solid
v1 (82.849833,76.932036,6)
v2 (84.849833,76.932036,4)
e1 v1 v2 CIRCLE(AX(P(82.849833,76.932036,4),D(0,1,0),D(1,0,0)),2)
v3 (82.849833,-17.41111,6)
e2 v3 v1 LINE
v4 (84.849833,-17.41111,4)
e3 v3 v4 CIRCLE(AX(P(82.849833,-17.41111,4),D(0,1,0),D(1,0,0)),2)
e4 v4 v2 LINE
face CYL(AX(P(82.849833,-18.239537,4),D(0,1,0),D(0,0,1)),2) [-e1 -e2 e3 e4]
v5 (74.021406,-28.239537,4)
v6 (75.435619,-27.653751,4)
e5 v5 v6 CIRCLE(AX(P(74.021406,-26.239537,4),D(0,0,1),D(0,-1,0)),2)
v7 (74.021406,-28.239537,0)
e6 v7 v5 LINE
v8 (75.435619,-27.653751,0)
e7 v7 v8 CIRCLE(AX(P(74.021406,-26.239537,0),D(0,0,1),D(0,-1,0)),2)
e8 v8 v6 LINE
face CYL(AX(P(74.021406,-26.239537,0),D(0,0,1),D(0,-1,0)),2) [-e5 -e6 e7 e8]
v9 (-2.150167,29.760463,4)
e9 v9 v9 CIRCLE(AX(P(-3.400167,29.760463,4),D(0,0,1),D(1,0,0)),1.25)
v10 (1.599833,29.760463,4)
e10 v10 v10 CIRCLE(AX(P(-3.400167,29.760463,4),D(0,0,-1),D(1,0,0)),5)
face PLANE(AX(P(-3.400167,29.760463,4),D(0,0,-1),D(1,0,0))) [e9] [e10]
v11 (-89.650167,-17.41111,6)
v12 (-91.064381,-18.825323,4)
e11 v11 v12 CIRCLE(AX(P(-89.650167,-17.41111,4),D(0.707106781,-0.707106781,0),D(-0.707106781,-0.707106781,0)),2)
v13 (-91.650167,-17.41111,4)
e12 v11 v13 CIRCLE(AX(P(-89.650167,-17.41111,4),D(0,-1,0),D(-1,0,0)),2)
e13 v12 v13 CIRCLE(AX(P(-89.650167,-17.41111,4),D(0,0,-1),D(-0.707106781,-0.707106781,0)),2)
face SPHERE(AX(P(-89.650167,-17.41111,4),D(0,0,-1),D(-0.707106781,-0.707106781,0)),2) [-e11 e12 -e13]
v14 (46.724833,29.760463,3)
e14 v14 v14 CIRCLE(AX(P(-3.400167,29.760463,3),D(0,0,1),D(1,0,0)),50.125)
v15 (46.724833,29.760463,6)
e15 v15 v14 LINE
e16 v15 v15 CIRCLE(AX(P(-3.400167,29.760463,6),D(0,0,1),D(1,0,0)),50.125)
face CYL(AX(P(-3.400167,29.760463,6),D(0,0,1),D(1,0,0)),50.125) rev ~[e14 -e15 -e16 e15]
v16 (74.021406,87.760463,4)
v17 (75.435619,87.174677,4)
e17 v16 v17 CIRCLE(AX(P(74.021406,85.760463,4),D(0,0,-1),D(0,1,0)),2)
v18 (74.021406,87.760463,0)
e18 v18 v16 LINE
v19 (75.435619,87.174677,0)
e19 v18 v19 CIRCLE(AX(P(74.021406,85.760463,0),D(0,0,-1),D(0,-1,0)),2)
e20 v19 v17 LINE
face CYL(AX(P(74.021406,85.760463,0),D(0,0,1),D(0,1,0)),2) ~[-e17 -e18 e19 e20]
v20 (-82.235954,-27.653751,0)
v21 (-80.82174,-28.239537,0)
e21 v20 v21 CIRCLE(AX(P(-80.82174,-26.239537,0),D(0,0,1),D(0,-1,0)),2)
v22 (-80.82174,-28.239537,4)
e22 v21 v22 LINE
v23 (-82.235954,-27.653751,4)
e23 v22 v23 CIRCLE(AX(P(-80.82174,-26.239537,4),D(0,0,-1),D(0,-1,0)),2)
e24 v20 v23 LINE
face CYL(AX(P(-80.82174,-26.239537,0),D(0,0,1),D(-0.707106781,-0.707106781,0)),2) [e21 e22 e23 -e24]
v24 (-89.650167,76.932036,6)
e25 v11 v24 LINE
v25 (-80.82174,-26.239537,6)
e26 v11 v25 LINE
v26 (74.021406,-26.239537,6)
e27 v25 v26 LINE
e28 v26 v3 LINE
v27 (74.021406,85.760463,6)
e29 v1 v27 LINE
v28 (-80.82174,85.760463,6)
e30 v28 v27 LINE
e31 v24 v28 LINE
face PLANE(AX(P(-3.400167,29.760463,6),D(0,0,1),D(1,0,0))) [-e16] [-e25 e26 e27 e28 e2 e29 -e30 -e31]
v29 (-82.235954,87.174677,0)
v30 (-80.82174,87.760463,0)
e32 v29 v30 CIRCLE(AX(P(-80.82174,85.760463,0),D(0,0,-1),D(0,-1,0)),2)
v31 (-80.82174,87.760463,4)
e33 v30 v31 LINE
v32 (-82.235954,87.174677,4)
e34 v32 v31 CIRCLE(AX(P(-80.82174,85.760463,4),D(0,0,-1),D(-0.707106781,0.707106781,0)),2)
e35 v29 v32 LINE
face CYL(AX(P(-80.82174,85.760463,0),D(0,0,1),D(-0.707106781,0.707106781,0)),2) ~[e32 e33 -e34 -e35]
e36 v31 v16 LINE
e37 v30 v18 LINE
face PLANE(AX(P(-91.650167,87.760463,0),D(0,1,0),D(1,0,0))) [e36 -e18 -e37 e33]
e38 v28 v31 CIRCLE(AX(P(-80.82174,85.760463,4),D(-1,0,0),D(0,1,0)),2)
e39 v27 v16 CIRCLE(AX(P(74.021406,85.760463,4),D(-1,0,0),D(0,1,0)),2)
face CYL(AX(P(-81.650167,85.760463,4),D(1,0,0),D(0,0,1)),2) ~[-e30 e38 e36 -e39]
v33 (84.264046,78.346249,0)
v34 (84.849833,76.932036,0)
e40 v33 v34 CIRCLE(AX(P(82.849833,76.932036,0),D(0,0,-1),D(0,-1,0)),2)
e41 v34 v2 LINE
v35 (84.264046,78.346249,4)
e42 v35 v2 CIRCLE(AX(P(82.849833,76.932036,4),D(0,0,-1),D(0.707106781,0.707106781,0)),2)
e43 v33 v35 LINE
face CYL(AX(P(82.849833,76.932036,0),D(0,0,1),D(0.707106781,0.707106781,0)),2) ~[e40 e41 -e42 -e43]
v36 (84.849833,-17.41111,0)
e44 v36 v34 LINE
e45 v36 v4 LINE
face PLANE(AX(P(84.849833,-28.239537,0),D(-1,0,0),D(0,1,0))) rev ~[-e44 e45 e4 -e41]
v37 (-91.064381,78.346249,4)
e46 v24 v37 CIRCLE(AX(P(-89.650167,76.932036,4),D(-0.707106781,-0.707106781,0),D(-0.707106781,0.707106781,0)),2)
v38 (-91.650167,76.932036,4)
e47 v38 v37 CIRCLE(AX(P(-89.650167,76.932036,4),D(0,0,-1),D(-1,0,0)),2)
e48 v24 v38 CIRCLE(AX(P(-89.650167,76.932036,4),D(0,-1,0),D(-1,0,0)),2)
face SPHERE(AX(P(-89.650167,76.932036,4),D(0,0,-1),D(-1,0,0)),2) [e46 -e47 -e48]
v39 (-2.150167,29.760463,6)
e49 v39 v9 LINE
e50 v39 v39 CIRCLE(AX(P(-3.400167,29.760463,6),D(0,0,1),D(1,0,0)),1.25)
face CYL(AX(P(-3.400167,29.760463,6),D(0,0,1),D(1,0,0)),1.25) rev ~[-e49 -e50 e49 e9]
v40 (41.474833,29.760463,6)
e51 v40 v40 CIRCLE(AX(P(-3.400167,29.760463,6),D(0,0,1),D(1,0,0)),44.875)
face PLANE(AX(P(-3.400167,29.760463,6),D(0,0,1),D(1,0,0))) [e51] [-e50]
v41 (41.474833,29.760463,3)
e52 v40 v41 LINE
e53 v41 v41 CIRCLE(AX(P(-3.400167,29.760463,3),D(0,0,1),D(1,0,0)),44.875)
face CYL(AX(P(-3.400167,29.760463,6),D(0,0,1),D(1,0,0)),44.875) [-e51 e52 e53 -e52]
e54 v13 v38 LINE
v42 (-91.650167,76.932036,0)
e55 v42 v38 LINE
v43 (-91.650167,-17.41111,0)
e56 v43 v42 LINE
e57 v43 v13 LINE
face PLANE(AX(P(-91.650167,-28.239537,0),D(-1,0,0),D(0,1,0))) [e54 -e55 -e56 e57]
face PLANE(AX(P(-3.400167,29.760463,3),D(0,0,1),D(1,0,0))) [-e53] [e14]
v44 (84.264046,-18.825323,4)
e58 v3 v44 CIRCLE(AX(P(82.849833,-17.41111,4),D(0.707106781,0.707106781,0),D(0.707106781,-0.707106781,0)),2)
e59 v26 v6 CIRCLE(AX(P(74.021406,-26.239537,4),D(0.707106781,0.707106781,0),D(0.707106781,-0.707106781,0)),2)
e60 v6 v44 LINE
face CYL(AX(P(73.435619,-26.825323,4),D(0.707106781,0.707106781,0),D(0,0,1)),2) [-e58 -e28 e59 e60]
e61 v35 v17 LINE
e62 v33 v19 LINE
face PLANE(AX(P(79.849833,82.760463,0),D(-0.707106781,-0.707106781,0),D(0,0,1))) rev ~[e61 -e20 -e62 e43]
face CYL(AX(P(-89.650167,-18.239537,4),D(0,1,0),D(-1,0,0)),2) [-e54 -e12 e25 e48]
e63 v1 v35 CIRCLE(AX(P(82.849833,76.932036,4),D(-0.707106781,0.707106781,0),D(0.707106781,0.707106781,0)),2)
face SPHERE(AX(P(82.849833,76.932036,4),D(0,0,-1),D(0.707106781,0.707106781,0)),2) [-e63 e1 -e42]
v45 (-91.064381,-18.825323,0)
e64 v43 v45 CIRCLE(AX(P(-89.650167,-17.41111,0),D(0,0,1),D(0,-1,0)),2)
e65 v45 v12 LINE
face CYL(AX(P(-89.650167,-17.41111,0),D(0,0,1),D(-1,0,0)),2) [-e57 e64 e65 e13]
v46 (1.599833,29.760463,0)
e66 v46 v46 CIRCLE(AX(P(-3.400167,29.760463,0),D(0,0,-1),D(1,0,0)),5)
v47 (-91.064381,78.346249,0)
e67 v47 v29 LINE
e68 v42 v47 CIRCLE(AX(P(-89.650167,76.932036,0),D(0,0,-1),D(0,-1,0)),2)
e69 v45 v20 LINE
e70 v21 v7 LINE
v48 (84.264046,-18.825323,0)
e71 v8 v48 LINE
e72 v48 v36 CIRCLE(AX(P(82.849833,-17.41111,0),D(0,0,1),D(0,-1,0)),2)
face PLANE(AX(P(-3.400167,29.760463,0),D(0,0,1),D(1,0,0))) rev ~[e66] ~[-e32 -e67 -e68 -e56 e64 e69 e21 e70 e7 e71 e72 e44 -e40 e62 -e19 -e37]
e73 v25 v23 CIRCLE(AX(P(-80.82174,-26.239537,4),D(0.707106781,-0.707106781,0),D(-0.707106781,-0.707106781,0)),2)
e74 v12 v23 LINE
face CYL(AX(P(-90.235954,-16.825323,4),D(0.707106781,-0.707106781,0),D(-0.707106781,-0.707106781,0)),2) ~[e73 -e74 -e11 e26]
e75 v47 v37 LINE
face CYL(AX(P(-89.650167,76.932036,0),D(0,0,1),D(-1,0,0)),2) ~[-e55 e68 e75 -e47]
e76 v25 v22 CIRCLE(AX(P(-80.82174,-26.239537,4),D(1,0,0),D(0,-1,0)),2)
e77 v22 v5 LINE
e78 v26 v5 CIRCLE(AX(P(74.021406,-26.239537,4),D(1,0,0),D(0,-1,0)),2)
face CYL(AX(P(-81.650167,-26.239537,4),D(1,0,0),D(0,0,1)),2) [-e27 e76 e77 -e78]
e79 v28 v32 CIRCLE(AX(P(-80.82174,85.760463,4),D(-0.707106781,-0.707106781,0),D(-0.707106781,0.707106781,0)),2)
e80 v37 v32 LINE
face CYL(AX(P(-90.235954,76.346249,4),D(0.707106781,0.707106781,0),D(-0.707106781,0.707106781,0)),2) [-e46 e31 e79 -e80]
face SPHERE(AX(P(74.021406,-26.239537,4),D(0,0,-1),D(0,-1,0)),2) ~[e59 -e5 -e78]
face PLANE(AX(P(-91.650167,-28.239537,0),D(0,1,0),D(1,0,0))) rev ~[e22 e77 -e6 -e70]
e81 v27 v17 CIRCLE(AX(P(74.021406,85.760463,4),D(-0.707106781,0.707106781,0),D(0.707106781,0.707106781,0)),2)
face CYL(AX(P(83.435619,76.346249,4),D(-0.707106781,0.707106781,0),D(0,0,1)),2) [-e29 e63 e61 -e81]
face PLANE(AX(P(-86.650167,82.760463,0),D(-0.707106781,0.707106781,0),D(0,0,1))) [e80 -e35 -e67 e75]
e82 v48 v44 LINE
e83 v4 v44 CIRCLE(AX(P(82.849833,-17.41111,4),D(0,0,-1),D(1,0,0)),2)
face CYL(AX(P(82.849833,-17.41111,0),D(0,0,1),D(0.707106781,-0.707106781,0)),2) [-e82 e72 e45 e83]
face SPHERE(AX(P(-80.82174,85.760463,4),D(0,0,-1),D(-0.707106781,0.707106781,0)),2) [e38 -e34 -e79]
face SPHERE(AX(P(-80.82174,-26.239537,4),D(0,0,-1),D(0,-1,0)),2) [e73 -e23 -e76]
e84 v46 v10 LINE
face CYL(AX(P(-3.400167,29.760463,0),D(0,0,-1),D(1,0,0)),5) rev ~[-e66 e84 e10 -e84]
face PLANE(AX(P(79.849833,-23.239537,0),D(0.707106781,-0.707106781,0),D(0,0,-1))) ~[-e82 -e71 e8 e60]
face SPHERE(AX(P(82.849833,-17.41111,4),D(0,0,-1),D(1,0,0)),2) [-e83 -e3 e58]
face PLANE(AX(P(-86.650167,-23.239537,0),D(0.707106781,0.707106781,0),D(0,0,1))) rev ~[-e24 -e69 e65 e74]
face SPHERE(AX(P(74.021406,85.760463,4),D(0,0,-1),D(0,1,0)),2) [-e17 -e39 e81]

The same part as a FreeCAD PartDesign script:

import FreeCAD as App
import Part
import Sketcher
from FreeCAD import Vector
Q = App.Units.Quantity


def edges_at(feature, points):
    """Names of the edges that pass closest to the given points."""
    edges = feature.Shape.Edges
    near = lambda p: min(range(len(edges)), key=lambda i: edges[i].distToShape(Part.Vertex(*p))[0])
    return sorted({f"Edge{near(p) + 1}" for p in points})

doc = App.newDocument("Part")
params = doc.addObject("Spreadsheet::Sheet", "Params")
for row, (alias, value) in enumerate([
    ("sketch1_height", "116 mm"),
    ("sketch1_width", "176.5 mm"),
    ("pad1_length", "6 mm"),
    ("chamfer_size", "10 mm"),
    ("fillet_radius", "2 mm"),
    ("sketch2_diameter", "100.25 mm"),
    ("sketch2_diameter2", "89.75 mm"),
    ("pocket1_length", "3 mm"),
    ("sketch3_diameter", "2.5 mm"),
    ("sketch4_diameter", "10 mm"),
    ("pocket3_length", "4 mm"),
], start=1):
    params.set(f"A{row}", alias)
    params.set(f"B{row}", "=" + value)
    params.setAlias(f"B{row}", alias)

body = doc.addObject("PartDesign::Body", "Body")

# Sketch on XY plane
sketch1 = body.newObject("Sketcher::SketchObject", "Sketch")
sketch1.AttachmentSupport = (doc.getObject("XY_Plane"), [""])
sketch1.MapMode = "FlatFace"
sketch1.addGeometry([
    Part.LineSegment(Vector(-92, 88, 0), Vector(-92, -28, 0)),
    Part.LineSegment(Vector(-92, -28, 0), Vector(85, -28, 0)),
    Part.LineSegment(Vector(85, -28, 0), Vector(85, 88, 0)),
    Part.LineSegment(Vector(85, 88, 0), Vector(-92, 88, 0)),
], False)
sketch1.addConstraint([
    Sketcher.Constraint("Coincident", 0, 2, 1, 1),
    Sketcher.Constraint("Coincident", 1, 2, 2, 1),
    Sketcher.Constraint("Coincident", 2, 2, 3, 1),
    Sketcher.Constraint("Coincident", 3, 2, 0, 1),
    Sketcher.Constraint("Vertical", 0),
    Sketcher.Constraint("Horizontal", 1),
    Sketcher.Constraint("Vertical", 2),
    Sketcher.Constraint("Horizontal", 3),
    Sketcher.Constraint("DistanceY", 0, 2, 0, 1, Q("116 mm")),
    Sketcher.Constraint("DistanceX", 1, 1, 1, 2, Q("176.5 mm")),
    Sketcher.Constraint("DistanceX", 0, 2, -1, 1, Q("91.650167 mm")),
    Sketcher.Constraint("DistanceY", 0, 2, -1, 1, Q("28.239537 mm")),
])
sketch1.setExpression("Constraints[8]", "Params.sketch1_height")
sketch1.setExpression("Constraints[9]", "Params.sketch1_width")
pad1 = body.newObject("PartDesign::Pad", "Pad")
pad1.Profile = sketch1
pad1.setExpression("Length", "Params.pad1_length")
doc.recompute()

chamfer = body.newObject("PartDesign::Chamfer", "Chamfer")
chamfer.Base = (pad1, edges_at(pad1, [
    (-91.65, -28.24, 3),
    (84.85, -28.24, 3),
    (84.85, 87.76, 3),
    (-91.65, 87.76, 3),
]))
chamfer.setExpression("Size", "Params.chamfer_size")
doc.recompute()

fillet = body.newObject("PartDesign::Fillet", "Fillet")
fillet.Base = (chamfer, edges_at(chamfer, [
    (-3.4, -28.24, 6),
    (-86.65, -23.24, 6),
    (-91.65, 29.76, 6),
    (-86.65, 82.76, 6),
    (-3.4, 87.76, 6),
    (79.85, 82.76, 6),
    (84.85, 29.76, 6),
    (79.85, -23.24, 6),
    (-81.65, -28.24, 3),
    (-91.65, -18.24, 3),
    (-91.65, 77.76, 3),
    (-81.65, 87.76, 3),
    (74.85, 87.76, 3),
    (84.85, 77.76, 3),
    (84.85, -18.24, 3),
    (74.85, -28.24, 3),
]))
fillet.setExpression("Radius", "Params.fillet_radius")

# Sketch on XY plane
sketch2 = body.newObject("Sketcher::SketchObject", "Sketch001")
sketch2.AttachmentSupport = (doc.getObject("XY_Plane"), [""])
sketch2.MapMode = "FlatFace"
sketch2.AttachmentOffset = App.Placement(Vector(0, 0, 6), App.Rotation())
sketch2.addGeometry([
    Part.Circle(Vector(-3, 30, 0), Vector(0, 0, 1), 50),
    Part.Circle(Vector(-3, 30, 0), Vector(0, 0, 1), 45),
], False)
sketch2.addConstraint([
    Sketcher.Constraint("Coincident", 1, 3, 0, 3),
    Sketcher.Constraint("Diameter", 0, Q("100.25 mm")),
    Sketcher.Constraint("Diameter", 1, Q("89.75 mm")),
    Sketcher.Constraint("DistanceX", 0, 3, -1, 1, Q("3.400167 mm")),
    Sketcher.Constraint("DistanceY", -1, 1, 0, 3, Q("29.760463 mm")),
])
sketch2.setExpression("Constraints[1]", "Params.sketch2_diameter")
sketch2.setExpression("Constraints[2]", "Params.sketch2_diameter2")
pocket1 = body.newObject("PartDesign::Pocket", "Pocket")
pocket1.Profile = sketch2
pocket1.setExpression("Length", "Params.pocket1_length")

# Sketch on XY plane
sketch3 = body.newObject("Sketcher::SketchObject", "Sketch002")
sketch3.AttachmentSupport = (doc.getObject("XY_Plane"), [""])
sketch3.MapMode = "FlatFace"
sketch3.AttachmentOffset = App.Placement(Vector(0, 0, 6), App.Rotation())
sketch3.addGeometry(Part.Circle(Vector(-3.4, 29.8, 0), Vector(0, 0, 1), 1.2), False)
sketch3.addConstraint([
    Sketcher.Constraint("Diameter", 0, Q("2.5 mm")),
    Sketcher.Constraint("DistanceX", 0, 3, -1, 1, Q("3.400167 mm")),
    Sketcher.Constraint("DistanceY", -1, 1, 0, 3, Q("29.760463 mm")),
])
sketch3.setExpression("Constraints[0]", "Params.sketch3_diameter")
pocket2 = body.newObject("PartDesign::Pocket", "Pocket001")
pocket2.Profile = sketch3
pocket2.Type = "ThroughAll"

# Sketch on XY plane
sketch4 = body.newObject("Sketcher::SketchObject", "Sketch003")
sketch4.AttachmentSupport = (doc.getObject("XY_Plane"), [""])
sketch4.MapMode = "FlatFace"
sketch4.addGeometry(Part.Circle(Vector(-3, 30, 0), Vector(0, 0, 1), 5), False)
sketch4.addConstraint([
    Sketcher.Constraint("Diameter", 0, Q("10 mm")),
    Sketcher.Constraint("DistanceX", 0, 3, -1, 1, Q("3.400167 mm")),
    Sketcher.Constraint("DistanceY", -1, 1, 0, 3, Q("29.760463 mm")),
])
sketch4.setExpression("Constraints[0]", "Params.sketch4_diameter")
pocket3 = body.newObject("PartDesign::Pocket", "Pocket002")
pocket3.Profile = sketch4
pocket3.setExpression("Length", "Params.pocket3_length")
pocket3.Reversed = True

doc.recompute()
